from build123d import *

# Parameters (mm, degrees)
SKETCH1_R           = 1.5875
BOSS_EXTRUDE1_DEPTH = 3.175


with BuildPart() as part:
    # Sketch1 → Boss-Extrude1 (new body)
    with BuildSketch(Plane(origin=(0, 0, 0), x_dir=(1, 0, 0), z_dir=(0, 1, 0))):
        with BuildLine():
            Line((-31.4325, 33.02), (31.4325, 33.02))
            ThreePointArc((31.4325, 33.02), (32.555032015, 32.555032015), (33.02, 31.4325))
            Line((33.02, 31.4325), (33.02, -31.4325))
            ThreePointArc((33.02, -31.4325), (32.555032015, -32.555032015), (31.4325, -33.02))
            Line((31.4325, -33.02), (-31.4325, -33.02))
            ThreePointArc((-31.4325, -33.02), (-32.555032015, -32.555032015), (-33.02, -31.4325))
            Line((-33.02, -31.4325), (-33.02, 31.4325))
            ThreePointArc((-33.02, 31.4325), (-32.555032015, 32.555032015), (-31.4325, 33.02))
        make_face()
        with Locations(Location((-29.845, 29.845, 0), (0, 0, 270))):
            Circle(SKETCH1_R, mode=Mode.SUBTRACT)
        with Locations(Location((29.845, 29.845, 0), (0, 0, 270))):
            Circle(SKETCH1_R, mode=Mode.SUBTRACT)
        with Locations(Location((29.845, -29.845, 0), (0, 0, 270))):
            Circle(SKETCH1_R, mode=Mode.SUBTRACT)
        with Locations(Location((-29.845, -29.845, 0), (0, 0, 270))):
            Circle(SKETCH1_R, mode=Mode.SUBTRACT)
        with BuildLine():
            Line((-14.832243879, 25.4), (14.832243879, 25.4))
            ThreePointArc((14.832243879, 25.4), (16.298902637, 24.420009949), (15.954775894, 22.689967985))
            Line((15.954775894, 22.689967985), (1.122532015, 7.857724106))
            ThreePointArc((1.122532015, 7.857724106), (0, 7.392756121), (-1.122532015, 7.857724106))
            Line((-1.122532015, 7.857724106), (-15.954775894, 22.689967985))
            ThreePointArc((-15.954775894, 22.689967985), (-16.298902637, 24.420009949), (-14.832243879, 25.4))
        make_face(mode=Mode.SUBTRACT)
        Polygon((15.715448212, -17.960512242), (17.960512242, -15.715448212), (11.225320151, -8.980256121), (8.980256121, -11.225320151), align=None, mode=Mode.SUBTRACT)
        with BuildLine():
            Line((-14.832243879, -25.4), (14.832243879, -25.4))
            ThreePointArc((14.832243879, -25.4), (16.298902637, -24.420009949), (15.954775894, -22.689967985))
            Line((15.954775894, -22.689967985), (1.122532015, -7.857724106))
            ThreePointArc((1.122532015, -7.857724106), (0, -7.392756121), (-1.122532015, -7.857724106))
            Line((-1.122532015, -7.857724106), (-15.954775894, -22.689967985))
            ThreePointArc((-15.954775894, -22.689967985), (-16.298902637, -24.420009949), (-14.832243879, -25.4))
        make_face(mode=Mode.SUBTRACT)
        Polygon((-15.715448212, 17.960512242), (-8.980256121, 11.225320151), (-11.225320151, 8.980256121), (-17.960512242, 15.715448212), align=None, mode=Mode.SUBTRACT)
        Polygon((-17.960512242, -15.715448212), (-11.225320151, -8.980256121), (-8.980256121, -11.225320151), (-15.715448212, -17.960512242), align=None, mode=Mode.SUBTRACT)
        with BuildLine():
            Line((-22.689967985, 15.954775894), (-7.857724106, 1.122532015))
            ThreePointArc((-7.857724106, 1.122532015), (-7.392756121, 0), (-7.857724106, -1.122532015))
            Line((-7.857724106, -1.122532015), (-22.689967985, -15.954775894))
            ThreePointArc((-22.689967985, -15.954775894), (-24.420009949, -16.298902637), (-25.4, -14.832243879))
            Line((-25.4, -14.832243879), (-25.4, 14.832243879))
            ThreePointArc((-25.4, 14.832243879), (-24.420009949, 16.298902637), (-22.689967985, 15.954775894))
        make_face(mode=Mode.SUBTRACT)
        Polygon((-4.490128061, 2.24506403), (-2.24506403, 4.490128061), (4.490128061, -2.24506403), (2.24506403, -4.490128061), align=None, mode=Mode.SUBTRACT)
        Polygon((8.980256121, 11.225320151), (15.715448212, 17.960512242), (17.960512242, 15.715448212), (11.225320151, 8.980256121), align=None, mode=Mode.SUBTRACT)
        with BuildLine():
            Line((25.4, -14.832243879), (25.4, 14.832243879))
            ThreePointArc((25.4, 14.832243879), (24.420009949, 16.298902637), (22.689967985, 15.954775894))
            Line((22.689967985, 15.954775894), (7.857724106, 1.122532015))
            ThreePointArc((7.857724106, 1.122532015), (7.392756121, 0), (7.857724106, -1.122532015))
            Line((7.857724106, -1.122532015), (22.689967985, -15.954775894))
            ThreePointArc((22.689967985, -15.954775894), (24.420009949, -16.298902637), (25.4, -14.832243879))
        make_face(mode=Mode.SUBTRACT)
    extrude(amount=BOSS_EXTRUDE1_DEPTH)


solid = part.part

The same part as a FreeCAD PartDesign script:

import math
import FreeCAD as App
import Part
import Sketcher

V = App.Vector
Q = App.Units.Quantity


def add_polygon(sketch, points):
    """Adds a closed chain of lines whose ends are joined by coincident constraints."""
    first, n = sketch.GeometryCount, len(points)
    for a, b in zip(points, points[1:] + points[:1]):
        sketch.addGeometry(Part.LineSegment(App.Vector(*a, 0), App.Vector(*b, 0)), False)
    for i in range(n):
        sketch.addConstraint(Sketcher.Constraint("Coincident", first + i, 2, first + (i + 1) % n, 1))

doc = App.newDocument("Part")
body = doc.addObject("PartDesign::Body", "Body")

sketch1 = body.newObject("Sketcher::SketchObject", "Sketch")
sketch1.AttachmentSupport = (doc.getObject("XZ_Plane"), [""])
sketch1.MapMode = "FlatFace"
sketch1.addGeometry(Part.LineSegment(V(31.4, -33, 0), V(-31.4, -33, 0)), False)
sketch1.addGeometry(Part.ArcOfCircle(Part.Circle(V(-31.4, -31.4, 0), V(0, 0, 1), 1.6), math.radians(180), math.radians(270)), False)
sketch1.addGeometry(Part.LineSegment(V(-33, -31.4, 0), V(-33, 31.4, 0)), False)
sketch1.addGeometry(Part.ArcOfCircle(Part.Circle(V(-31.4, 31.4, 0), V(0, 0, 1), 1.6), math.radians(90), math.radians(180)), False)
sketch1.addGeometry(Part.LineSegment(V(-31.4, 33, 0), V(31.4, 33, 0)), False)
sketch1.addGeometry(Part.ArcOfCircle(Part.Circle(V(31.4, 31.4, 0), V(0, 0, 1), 1.6), math.radians(0), math.radians(90)), False)
sketch1.addGeometry(Part.LineSegment(V(33, 31.4, 0), V(33, -31.4, 0)), False)
sketch1.addGeometry(Part.ArcOfCircle(Part.Circle(V(31.4, -31.4, 0), V(0, 0, 1), 1.6), math.radians(-90), math.radians(0)), False)
sketch1.addGeometry(Part.Circle(V(29.8, 29.8, 0), V(0, 0, 1), 1.6), False)
add_polygon(sketch1, [(15.7, 18), (9, 11.2), (11.2, 9), (18, 15.7)])
sketch1.addGeometry(Part.ArcOfCircle(Part.Circle(V(-14.8, 23.8, 0), V(0, 0, 1), 1.6), math.radians(90), math.radians(225)), False)
sketch1.addGeometry(Part.LineSegment(V(-16, 22.7, 0), V(-1.1, 7.9, 0)), False)
sketch1.addGeometry(Part.ArcOfCircle(Part.Circle(V(0, 9, 0), V(0, 0, 1), 1.6), math.radians(-135), math.radians(-45)), False)
sketch1.addGeometry(Part.LineSegment(V(1.1, 7.9, 0), V(16, 22.7, 0)), False)
sketch1.addGeometry(Part.ArcOfCircle(Part.Circle(V(14.8, 23.8, 0), V(0, 0, 1), 1.6), math.radians(-45), math.radians(90)), False)
sketch1.addGeometry(Part.LineSegment(V(14.8, 25.4, 0), V(-14.8, 25.4, 0)), False)
sketch1.addGeometry(Part.Circle(V(-29.8, 29.8, 0), V(0, 0, 1), 1.6), False)
add_polygon(sketch1, [(-18, 15.7), (-11.2, 9), (-9, 11.2), (-15.7, 18)])
sketch1.addGeometry(Part.ArcOfCircle(Part.Circle(V(23.8, 14.8, 0), V(0, 0, 1), 1.6), math.radians(0), math.radians(135)), False)
sketch1.addGeometry(Part.LineSegment(V(22.7, 16, 0), V(7.9, 1.1, 0)), False)
sketch1.addGeometry(Part.ArcOfCircle(Part.Circle(V(9, 0, 0), V(0, 0, 1), 1.6), math.radians(135), math.radians(225)), False)
sketch1.addGeometry(Part.LineSegment(V(7.9, -1.1, 0), V(22.7, -16, 0)), False)
sketch1.addGeometry(Part.ArcOfCircle(Part.Circle(V(23.8, -14.8, 0), V(0, 0, 1), 1.6), math.radians(-135), math.radians(0)), False)
sketch1.addGeometry(Part.LineSegment(V(25.4, -14.8, 0), V(25.4, 14.8, 0)), False)
add_polygon(sketch1, [(9, -11.2), (15.7, -18), (18, -15.7), (11.2, -9)])
sketch1.addGeometry(Part.Circle(V(29.8, -29.8, 0), V(0, 0, 1), 1.6), False)
add_polygon(sketch1, [(-4.5, -2.2), (-2.2, -4.5), (4.5, 2.2), (2.2, 4.5)])
add_polygon(sketch1, [(-15.7, -18), (-9, -11.2), (-11.2, -9), (-18, -15.7)])
sketch1.addGeometry(Part.LineSegment(V(-22.7, -16, 0), V(-7.9, -1.1, 0)), False)
sketch1.addGeometry(Part.ArcOfCircle(Part.Circle(V(-9, 0, 0), V(0, 0, 1), 1.6), math.radians(-45), math.radians(45)), False)
sketch1.addGeometry(Part.LineSegment(V(-7.9, 1.1, 0), V(-22.7, 16, 0)), False)
sketch1.addGeometry(Part.ArcOfCircle(Part.Circle(V(-23.8, 14.8, 0), V(0, 0, 1), 1.6), math.radians(45), math.radians(180)), False)
sketch1.addGeometry(Part.LineSegment(V(-25.4, 14.8, 0), V(-25.4, -14.8, 0)), False)
sketch1.addGeometry(Part.ArcOfCircle(Part.Circle(V(-23.8, -14.8, 0), V(0, 0, 1), 1.6), math.radians(180), math.radians(315)), False)
sketch1.addGeometry(Part.LineSegment(V(-14.8, -25.4, 0), V(14.8, -25.4, 0)), False)
sketch1.addGeometry(Part.ArcOfCircle(Part.Circle(V(14.8, -23.8, 0), V(0, 0, 1), 1.6), math.radians(-90), math.radians(45)), False)
sketch1.addGeometry(Part.LineSegment(V(16, -22.7, 0), V(1.1, -7.9, 0)), False)
sketch1.addGeometry(Part.ArcOfCircle(Part.Circle(V(0, -9, 0), V(0, 0, 1), 1.6), math.radians(45), math.radians(135)), False)
sketch1.addGeometry(Part.LineSegment(V(-1.1, -7.9, 0), V(-16, -22.7, 0)), False)
sketch1.addGeometry(Part.ArcOfCircle(Part.Circle(V(-14.8, -23.8, 0), V(0, 0, 1), 1.6), math.radians(135), math.radians(270)), False)
sketch1.addGeometry(Part.Circle(V(-29.8, -29.8, 0), V(0, 0, 1), 1.6), False)
sketch1.addConstraint([
    Sketcher.Constraint("Tangent", 0, 2, 1, 2),
    Sketcher.Constraint("Tangent", 1, 1, 2, 1),
    Sketcher.Constraint("Tangent", 2, 2, 3, 2),
    Sketcher.Constraint("Tangent", 3, 1, 4, 1),
    Sketcher.Constraint("Tangent", 4, 2, 5, 2),
    Sketcher.Constraint("Tangent", 5, 1, 6, 1),
    Sketcher.Constraint("Tangent", 6, 2, 7, 2),
    Sketcher.Constraint("Tangent", 7, 1, 0, 1),
    Sketcher.Constraint("Tangent", 13, 2, 14, 1),
    Sketcher.Constraint("Tangent", 14, 2, 15, 1),
    Sketcher.Constraint("Tangent", 15, 2, 16, 1),
    Sketcher.Constraint("Tangent", 16, 2, 17, 1),
    Sketcher.Constraint("Tangent", 17, 2, 18, 1),
    Sketcher.Constraint("Tangent", 18, 2, 13, 1),
    Sketcher.Constraint("Tangent", 24, 2, 25, 1),
    Sketcher.Constraint("Tangent", 25, 2, 26, 1),
    Sketcher.Constraint("Tangent", 26, 2, 27, 1),
    Sketcher.Constraint("Tangent", 27, 2, 28, 1),
    Sketcher.Constraint("Tangent", 28, 2, 29, 1),
    Sketcher.Constraint("Tangent", 29, 2, 24, 1),
    Sketcher.Constraint("Tangent", 43, 2, 44, 1),
    Sketcher.Constraint("Tangent", 44, 2, 45, 1),
    Sketcher.Constraint("Tangent", 45, 2, 46, 1),
    Sketcher.Constraint("Tangent", 46, 2, 47, 1),
    Sketcher.Constraint("Tangent", 47, 2, 48, 1),
    Sketcher.Constraint("Tangent", 48, 2, 43, 1),
    Sketcher.Constraint("Tangent", 49, 2, 50, 1),
    Sketcher.Constraint("Tangent", 50, 2, 51, 1),
    Sketcher.Constraint("Tangent", 51, 2, 52, 1),
    Sketcher.Constraint("Tangent", 52, 2, 53, 1),
    Sketcher.Constraint("Tangent", 53, 2, 54, 1),
    Sketcher.Constraint("Tangent", 54, 2, 49, 1),
    Sketcher.Constraint("Horizontal", 0),
    Sketcher.Constraint("Vertical", 2),
    Sketcher.Constraint("Horizontal", 4),
    Sketcher.Constraint("Vertical", 6),
    Sketcher.Constraint("Horizontal", 18),
    Sketcher.Constraint("Vertical", 29),
    Sketcher.Constraint("Vertical", 47),
    Sketcher.Constraint("Horizontal", 49),
    Sketcher.Constraint("Equal", 1, 3),
    Sketcher.Constraint("Equal", 3, 5),
    Sketcher.Constraint("Equal", 5, 7),
    Sketcher.Constraint("Equal", 7, 8),
    Sketcher.Constraint("Equal", 8, 13),
    Sketcher.Constraint("Equal", 13, 15),
    Sketcher.Constraint("Equal", 15, 17),
    Sketcher.Constraint("Equal", 17, 19),
    Sketcher.Constraint("Equal", 19, 24),
    Sketcher.Constraint("Equal", 24, 26),
    Sketcher.Constraint("Equal", 26, 28),
    Sketcher.Constraint("Equal", 28, 34),
    Sketcher.Constraint("Equal", 34, 44),
    Sketcher.Constraint("Equal", 44, 46),
    Sketcher.Constraint("Equal", 46, 48),
    Sketcher.Constraint("Equal", 48, 50),
    Sketcher.Constraint("Equal", 50, 52),
    Sketcher.Constraint("Equal", 52, 54),
    Sketcher.Constraint("Equal", 54, 55),
    Sketcher.Constraint("Symmetric", 1, 3, 5, 3, -1, 1),
    Sketcher.Constraint("Symmetric", 19, 3, 34, 3, -1, 1),
    Sketcher.Constraint("Symmetric", 26, 3, 44, 3, -1, 1),
    Sketcher.Constraint("Symmetric", 28, 3, 46, 3, -1, 1),
    Sketcher.Constraint("Symmetric", 13, 3, 50, 3, -1, 1),
    Sketcher.Constraint("Symmetric", 15, 3, 52, 3, -1, 1),
    Sketcher.Constraint("Symmetric", 8, 3, 55, 3, -1, 1),
    Sketcher.Constraint("Symmetric", 22, 2, 30, 2, -1, 1),
    Sketcher.Constraint("Symmetric", 23, 2, 31, 2, -1, 1),
    Sketcher.Constraint("Symmetric", 20, 2, 32, 2, -1, 1),
    Sketcher.Constraint("Symmetric", 21, 2, 33, 2, -1, 1),
    Sketcher.Constraint("Symmetric", 35, 2, 37, 2, -1, 1),
    Sketcher.Constraint("Symmetric", 36, 2, 38, 2, -1, 1),
    Sketcher.Constraint("Symmetric", 9, 2, 39, 2, -1, 1),
    Sketcher.Constraint("Symmetric", 10, 2, 40, 2, -1, 1),
    Sketcher.Constraint("Symmetric", 11, 2, 41, 2, -1, 1),
    Sketcher.Constraint("Symmetric", 12, 2, 42, 2, -1, 1),
    Sketcher.Constraint("Symmetric", 8, 3, 19, 3, -2),
    Sketcher.Constraint("Symmetric", 14, 2, 15, 2, -2),
    Sketcher.Constraint("Symmetric", 10, 2, 20, 2, -2),
    Sketcher.Constraint("Symmetric", 9, 2, 21, 2, -2),
    Sketcher.Constraint("Symmetric", 12, 2, 22, 2, -2),
    Sketcher.Constraint("Symmetric", 11, 2, 23, 2, -2),
    Sketcher.Constraint("Symmetric", 26, 2, 43, 2, -2),
    Sketcher.Constraint("Perpendicular", 9, 10),
    Sketcher.Constraint("Perpendicular", 10, 11),
    Sketcher.Constraint("Perpendicular", 11, 12),
    Sketcher.Constraint("Parallel", 12, 14),
    Sketcher.Constraint("Perpendicular", 14, 16),
    Sketcher.Constraint("Parallel", 23, 25),
    Sketcher.Constraint("Perpendicular", 25, 27),
    Sketcher.Constraint("Perpendicular", 33, 35),
    Sketcher.Constraint("Perpendicular", 35, 36),
    Sketcher.Constraint("Perpendicular", 51, 53),
    Sketcher.Constraint("Horizontal", 15, 3, 10, 2),
    Sketcher.Constraint("Vertical", 26, 3, 9, 2),
    Sketcher.Constraint("Equal", 4, 2),
    Sketcher.Constraint("Equal", 49, 29),
    Sketcher.Constraint("Equal", 33, 35),
    Sketcher.Constraint("Equal", 32, 36),
    Sketcher.Constraint("Diameter", 8, Q("0.125 in")),
    Sketcher.Constraint("DistanceY", -1, 1, 17, 2, Q("1 in")),
    Sketcher.Constraint("DistanceX", -1, 1, 28, 2, Q("1 in")),
    Sketcher.Constraint("DistanceY", 0, 2, -1, 1, Q("1.3 in")),
    Sketcher.Constraint("Distance", 9, Q("0.375 in")),
    Sketcher.Constraint("Distance", 10, Q("0.125 in")),
    Sketcher.Constraint("DistanceX", -1, 1, 8, 3, Q("1.175 in")),
    Sketcher.Constraint("DistanceY", -1, 1, 8, 3, Q("1.175 in")),
    Sketcher.Constraint("Distance", 14, Q("20.97596 mm")),
])
pad1 = body.newObject("PartDesign::Pad", "Pad")
pad1.Profile = sketch1
pad1.Length = Q("0.125 in")
pad1.Reversed = True

doc.recompute()
